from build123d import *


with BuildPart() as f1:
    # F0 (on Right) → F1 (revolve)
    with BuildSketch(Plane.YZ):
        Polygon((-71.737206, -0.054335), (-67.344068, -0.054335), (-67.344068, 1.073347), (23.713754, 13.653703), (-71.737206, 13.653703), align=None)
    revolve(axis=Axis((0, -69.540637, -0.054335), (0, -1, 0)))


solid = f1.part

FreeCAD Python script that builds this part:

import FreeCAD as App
import Part
import Sketcher

V = App.Vector
Q = App.Units.Quantity

doc = App.newDocument("Part")
body = doc.addObject("PartDesign::Body", "Body")

# Sketch on YZ plane
sketch1 = body.newObject("Sketcher::SketchObject", "Sketch")
sketch1.AttachmentSupport = (doc.getObject("YZ_Plane"), [""])
sketch1.MapMode = "FlatFace"
sketch1.addGeometry(Part.LineSegment(V(-71.737206, -0.054335, 0), V(-67.344068, -0.054335, 0)), False)
sketch1.addGeometry(Part.LineSegment(V(-67.344068, -0.054335, 0), V(-67.344068, 1.073347, 0)), False)
sketch1.addGeometry(Part.LineSegment(V(-67.344068, 1.073347, 0), V(23.713754, 13.653703, 0)), False)
sketch1.addGeometry(Part.LineSegment(V(23.713754, 13.653703, 0), V(-71.737206, 13.653703, 0)), False)
sketch1.addGeometry(Part.LineSegment(V(-71.737206, 13.653703, 0), V(-71.737206, -0.054335, 0)), False)
sketch1.addGeometry(Part.LineSegment(V(23.713754, -0.054335, 0), V(-71.737206, -0.054335, 0)), True)  # axis
sketch1.addConstraint(Sketcher.Constraint("Coincident", 0, 2, 1, 1))
sketch1.addConstraint(Sketcher.Constraint("Coincident", 1, 2, 2, 1))
sketch1.addConstraint(Sketcher.Constraint("Coincident", 2, 2, 3, 1))
sketch1.addConstraint(Sketcher.Constraint("Coincident", 3, 2, 4, 1))
sketch1.addConstraint(Sketcher.Constraint("Coincident", 4, 2, 0, 1))
sketch1.addConstraint(Sketcher.Constraint("Horizontal", 0))
sketch1.addConstraint(Sketcher.Constraint("Vertical", 1))
sketch1.addConstraint(Sketcher.Constraint("Horizontal", 3))
sketch1.addConstraint(Sketcher.Constraint("Vertical", 4))
sketch1.addConstraint(Sketcher.Constraint("Horizontal", 5))
sketch1.addConstraint(Sketcher.Constraint("Coincident", 5, 2, 4, 2))
sketch1.addConstraint(Sketcher.Constraint("Vertical", 2, 2, 5, 1))
sketch1.addConstraint(Sketcher.Constraint("DistanceX", 0, 1, 0, 2, Q("4.393138 mm")))
sketch1.addConstraint(Sketcher.Constraint("DistanceX", 3, 2, 3, 1, Q("95.45096 mm")))
sketch1.addConstraint(Sketcher.Constraint("Distance", 2, Q("91.922752 mm")))
sketch1.addConstraint(Sketcher.Constraint("DistanceY", 1, 1, 1, 2, Q("1.127682 mm")))
sketch1.addConstraint(Sketcher.Constraint("DistanceX", 0, 2, -1, 1, Q("67.344068 mm")))
sketch1.addConstraint(Sketcher.Constraint("DistanceY", 0, 2, -1, 1, Q("0.054335 mm")))
revolution = body.newObject("PartDesign::Revolution", "Revolution")
revolution.Profile = sketch1
revolution.ReferenceAxis = (sketch1, ["Axis0"])
revolution.Angle = 360

doc.recompute()
